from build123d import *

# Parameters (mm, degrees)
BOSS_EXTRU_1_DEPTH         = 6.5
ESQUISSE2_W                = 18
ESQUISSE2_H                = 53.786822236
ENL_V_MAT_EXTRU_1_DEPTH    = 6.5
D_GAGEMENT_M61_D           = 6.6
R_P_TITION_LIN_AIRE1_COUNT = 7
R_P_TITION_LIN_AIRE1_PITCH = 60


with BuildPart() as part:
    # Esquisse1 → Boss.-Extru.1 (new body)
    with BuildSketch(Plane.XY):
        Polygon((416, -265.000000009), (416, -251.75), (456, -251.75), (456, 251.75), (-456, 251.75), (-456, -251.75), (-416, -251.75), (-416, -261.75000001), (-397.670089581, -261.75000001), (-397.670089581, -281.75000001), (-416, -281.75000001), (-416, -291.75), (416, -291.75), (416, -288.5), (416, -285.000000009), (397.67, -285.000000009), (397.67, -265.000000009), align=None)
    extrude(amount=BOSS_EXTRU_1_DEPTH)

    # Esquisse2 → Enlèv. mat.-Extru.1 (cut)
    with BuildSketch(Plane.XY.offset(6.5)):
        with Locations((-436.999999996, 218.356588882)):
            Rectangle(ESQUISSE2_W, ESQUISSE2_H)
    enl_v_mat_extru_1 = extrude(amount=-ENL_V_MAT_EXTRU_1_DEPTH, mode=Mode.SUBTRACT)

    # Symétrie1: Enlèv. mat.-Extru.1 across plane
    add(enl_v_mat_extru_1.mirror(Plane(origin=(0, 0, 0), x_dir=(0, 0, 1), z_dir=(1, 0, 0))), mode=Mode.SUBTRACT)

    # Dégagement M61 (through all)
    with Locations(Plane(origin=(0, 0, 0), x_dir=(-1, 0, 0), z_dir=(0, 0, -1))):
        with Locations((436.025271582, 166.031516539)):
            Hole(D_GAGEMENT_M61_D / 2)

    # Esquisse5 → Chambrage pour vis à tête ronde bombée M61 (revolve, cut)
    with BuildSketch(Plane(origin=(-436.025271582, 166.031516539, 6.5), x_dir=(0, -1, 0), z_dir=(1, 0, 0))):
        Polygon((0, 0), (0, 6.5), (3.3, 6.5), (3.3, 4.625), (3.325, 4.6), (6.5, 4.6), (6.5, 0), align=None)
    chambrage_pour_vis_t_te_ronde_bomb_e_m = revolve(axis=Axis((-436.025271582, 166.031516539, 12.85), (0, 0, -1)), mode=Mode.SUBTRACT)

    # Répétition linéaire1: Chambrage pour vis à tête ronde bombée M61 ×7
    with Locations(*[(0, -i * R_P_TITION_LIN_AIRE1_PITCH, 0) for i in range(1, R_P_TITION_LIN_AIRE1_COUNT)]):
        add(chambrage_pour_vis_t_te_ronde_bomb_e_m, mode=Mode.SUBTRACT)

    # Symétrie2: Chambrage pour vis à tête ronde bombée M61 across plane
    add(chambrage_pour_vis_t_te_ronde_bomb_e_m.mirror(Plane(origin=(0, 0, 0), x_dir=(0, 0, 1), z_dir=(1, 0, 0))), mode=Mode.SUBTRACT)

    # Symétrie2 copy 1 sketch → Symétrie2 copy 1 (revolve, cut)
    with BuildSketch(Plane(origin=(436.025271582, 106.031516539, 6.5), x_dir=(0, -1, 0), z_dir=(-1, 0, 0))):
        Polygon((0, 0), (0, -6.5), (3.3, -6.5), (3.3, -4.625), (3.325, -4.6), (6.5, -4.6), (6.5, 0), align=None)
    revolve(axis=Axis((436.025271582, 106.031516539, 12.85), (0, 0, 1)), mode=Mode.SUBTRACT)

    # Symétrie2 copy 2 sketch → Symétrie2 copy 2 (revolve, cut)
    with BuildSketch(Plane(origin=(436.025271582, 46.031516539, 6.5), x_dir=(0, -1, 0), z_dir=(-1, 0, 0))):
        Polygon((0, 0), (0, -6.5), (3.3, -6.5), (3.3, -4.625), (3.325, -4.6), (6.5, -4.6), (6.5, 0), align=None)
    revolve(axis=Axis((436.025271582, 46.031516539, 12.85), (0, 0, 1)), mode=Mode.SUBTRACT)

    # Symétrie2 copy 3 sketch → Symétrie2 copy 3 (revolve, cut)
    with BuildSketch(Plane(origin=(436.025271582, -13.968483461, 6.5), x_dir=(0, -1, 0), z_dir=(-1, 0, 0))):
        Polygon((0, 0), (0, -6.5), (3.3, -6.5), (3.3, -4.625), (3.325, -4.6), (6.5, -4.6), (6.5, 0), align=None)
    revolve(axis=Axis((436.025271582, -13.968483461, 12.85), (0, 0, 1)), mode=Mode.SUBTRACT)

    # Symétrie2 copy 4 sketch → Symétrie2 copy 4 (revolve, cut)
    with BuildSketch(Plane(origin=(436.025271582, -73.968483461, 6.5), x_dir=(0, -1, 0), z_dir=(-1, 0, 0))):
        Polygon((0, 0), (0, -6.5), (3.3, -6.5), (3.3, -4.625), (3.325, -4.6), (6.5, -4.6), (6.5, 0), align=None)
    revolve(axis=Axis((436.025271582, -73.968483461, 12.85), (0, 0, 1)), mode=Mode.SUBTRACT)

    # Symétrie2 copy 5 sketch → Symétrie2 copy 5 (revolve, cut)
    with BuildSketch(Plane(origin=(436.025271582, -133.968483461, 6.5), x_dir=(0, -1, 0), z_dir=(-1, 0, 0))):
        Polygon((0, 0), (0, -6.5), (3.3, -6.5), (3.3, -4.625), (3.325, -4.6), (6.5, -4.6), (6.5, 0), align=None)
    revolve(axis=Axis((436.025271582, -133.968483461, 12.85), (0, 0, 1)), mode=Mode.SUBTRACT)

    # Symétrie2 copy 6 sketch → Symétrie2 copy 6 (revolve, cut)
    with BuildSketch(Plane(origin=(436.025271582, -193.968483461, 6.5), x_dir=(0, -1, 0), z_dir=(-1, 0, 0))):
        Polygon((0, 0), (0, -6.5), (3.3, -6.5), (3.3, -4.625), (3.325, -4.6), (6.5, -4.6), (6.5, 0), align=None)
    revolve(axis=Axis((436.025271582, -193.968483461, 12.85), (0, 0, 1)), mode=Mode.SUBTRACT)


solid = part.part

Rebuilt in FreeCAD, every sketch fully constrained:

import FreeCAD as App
import Part
import Sketcher
Q = App.Units.Quantity


def add_polygon(sketch, points):
    """Adds a closed chain of lines whose ends are joined by coincident constraints."""
    first, n = sketch.GeometryCount, len(points)
    for a, b in zip(points, points[1:] + points[:1]):
        sketch.addGeometry(Part.LineSegment(App.Vector(*a, 0), App.Vector(*b, 0)), False)
    for i in range(n):
        sketch.addConstraint(Sketcher.Constraint("Coincident", first + i, 2, first + (i + 1) % n, 1))

doc = App.newDocument("Part")
params = doc.addObject("Spreadsheet::Sheet", "Params")
for row, (alias, value) in enumerate([
    ("sketch1_width", "40 mm"),
    ("sketch1_width2", "912 mm"),
    ("sketch1_height", "10 mm"),
    ("sketch1_height2", "20 mm"),
    ("sketch1_height3", "503.5 mm"),
    ("pad1_length", "6.5 mm"),
    ("sketch2_width", "18 mm"),
    ("pocket1_length", "6.5 mm"),
    ("sketch3_diameter", "6.6 mm"),
    ("hole_diameter", "6.6 mm"),
    ("sketch4_width", "6.5 mm"),
    ("sketch4_width2", "3.3 mm"),
    ("sketch4_height", "4.6 mm"),
    ("groove_angle", "360 deg"),
    ("linearpattern_pitch", "60 mm"),
    ("sketch5_width", "3.3 mm"),
    ("sketch5_width2", "6.5 mm"),
    ("sketch5_height", "4.6 mm"),
    ("groove2_angle", "360 deg"),
    ("sketch6_width", "3.3 mm"),
    ("sketch6_width2", "6.5 mm"),
    ("sketch6_height", "4.6 mm"),
    ("groove3_angle", "360 deg"),
    ("sketch7_width", "3.3 mm"),
    ("sketch7_width2", "6.5 mm"),
    ("sketch7_height", "4.6 mm"),
    ("groove4_angle", "360 deg"),
    ("sketch8_width", "3.3 mm"),
    ("sketch8_width2", "6.5 mm"),
    ("sketch8_height", "4.6 mm"),
    ("groove5_angle", "360 deg"),
    ("sketch9_width", "3.3 mm"),
    ("sketch9_width2", "6.5 mm"),
    ("sketch9_height", "4.6 mm"),
    ("groove6_angle", "360 deg"),
    ("sketch10_width", "3.3 mm"),
    ("sketch10_width2", "6.5 mm"),
    ("sketch10_height", "4.6 mm"),
    ("groove7_angle", "360 deg"),
], start=1):
    params.set(f"A{row}", alias)
    params.set(f"B{row}", "=" + value)
    params.setAlias(f"B{row}", alias)

body = doc.addObject("PartDesign::Body", "Body")

sketch1 = body.newObject("Sketcher::SketchObject", "Sketch")
sketch1.AttachmentSupport = (doc.getObject("XY_Plane"), [""])
sketch1.MapMode = "FlatFace"
add_polygon(sketch1, [(416, -265), (416, -252), (456, -252), (456, 252), (-456, 252), (-456, -252), (-416, -252), (-416, -262), (-398, -262), (-398, -282), (-416, -282), (-416, -292), (416, -292), (416, -285), (398, -285), (398, -265)])
sketch1.addConstraint([
    Sketcher.Constraint("Vertical", 0),
    Sketcher.Constraint("Horizontal", 1),
    Sketcher.Constraint("Vertical", 2),
    Sketcher.Constraint("Horizontal", 3),
    Sketcher.Constraint("Vertical", 4),
    Sketcher.Constraint("Horizontal", 5),
    Sketcher.Constraint("Vertical", 6),
    Sketcher.Constraint("Horizontal", 7),
    Sketcher.Constraint("Vertical", 8),
    Sketcher.Constraint("Horizontal", 9),
    Sketcher.Constraint("Vertical", 10),
    Sketcher.Constraint("Horizontal", 11),
    Sketcher.Constraint("Vertical", 12),
    Sketcher.Constraint("Horizontal", 13),
    Sketcher.Constraint("Vertical", 14),
    Sketcher.Constraint("Horizontal", 15),
    Sketcher.Constraint("Symmetric", 1, 2, 3, 2, -1, 1),
    Sketcher.Constraint("Symmetric", 0, 2, 5, 2, -2),
    Sketcher.Constraint("Vertical", 6, 2, 9, 2),
    Sketcher.Constraint("Vertical", 0, 2, 11, 2),
    Sketcher.Constraint("Equal", 6, 10),
    Sketcher.Constraint("Equal", 8, 14),
    Sketcher.Constraint("DistanceX", 1, 1, 1, 2, Q("40 mm")),
    Sketcher.Constraint("DistanceX", 3, 2, 3, 1, Q("912 mm")),
    Sketcher.Constraint("DistanceY", 6, 2, 6, 1, Q("10 mm")),
    Sketcher.Constraint("DistanceY", 8, 2, 8, 1, Q("20 mm")),
    Sketcher.Constraint("DistanceY", 2, 1, 2, 2, Q("503.5 mm")),
    Sketcher.Constraint("DistanceY", 12, 2, -1, 1, Q("285 mm")),
    Sketcher.Constraint("DistanceX", 13, 2, 13, 1, Q("18.33 mm")),
    Sketcher.Constraint("DistanceX", 7, 1, 7, 2, Q("18.32991 mm")),
])
sketch1.setExpression("Constraints[38]", "Params.sketch1_width")
sketch1.setExpression("Constraints[39]", "Params.sketch1_width2")
sketch1.setExpression("Constraints[40]", "Params.sketch1_height")
sketch1.setExpression("Constraints[41]", "Params.sketch1_height2")
sketch1.setExpression("Constraints[42]", "Params.sketch1_height3")
pad1 = body.newObject("PartDesign::Pad", "Pad")
pad1.Profile = sketch1
pad1.setExpression("Length", "Params.pad1_length")

sketch2 = body.newObject("Sketcher::SketchObject", "Sketch001")
sketch2.AttachmentSupport = (doc.getObject("XY_Plane"), [""])
sketch2.MapMode = "FlatFace"
sketch2.AttachmentOffset = App.Placement(App.Vector(0, 0, 6.5), App.Rotation())
add_polygon(sketch2, [(-446, 245), (-446, 191), (-428, 191), (-428, 245)])
sketch2.addConstraint([
    Sketcher.Constraint("Vertical", 0),
    Sketcher.Constraint("Horizontal", 1),
    Sketcher.Constraint("Vertical", 2),
    Sketcher.Constraint("Horizontal", 3),
    Sketcher.Constraint("DistanceX", 1, 1, 1, 2, Q("18 mm")),
    Sketcher.Constraint("DistanceX", 0, 2, -1, 1, Q("446 mm")),
    Sketcher.Constraint("DistanceY", -1, 1, 2, 2, Q("245.25 mm")),
    Sketcher.Constraint("DistanceY", 0, 2, 0, 1, Q("53.786822 mm")),
])
sketch2.setExpression("Constraints[8]", "Params.sketch2_width")
pocket1 = body.newObject("PartDesign::Pocket", "Pocket")
pocket1.Profile = sketch2
pocket1.setExpression("Length", "Params.pocket1_length")
doc.recompute()

mirrored = body.newObject("PartDesign::Mirrored", "Mirrored")
mirrored.Originals = [pocket1]
mirrored.MirrorPlane = (doc.getObject("YZ_Plane"), [""])
body.Tip = mirrored

sketch3 = body.newObject("Sketcher::SketchObject", "Sketch002")
sketch3.AttachmentSupport = (doc.getObject("XY_Plane"), [""])
sketch3.MapMode = "FlatFace"
sketch3.addGeometry(Part.Circle(App.Vector(-436, 166, 0), App.Vector(0, 0, 1), 3.3), False)
sketch3.addConstraint([
    Sketcher.Constraint("Diameter", 0, Q("6.6 mm")),
    Sketcher.Constraint("DistanceX", 0, 3, -1, 1, Q("436.025272 mm")),
    Sketcher.Constraint("DistanceY", -1, 1, 0, 3, Q("166.031517 mm")),
])
sketch3.setExpression("Constraints[0]", "Params.sketch3_diameter")
doc.recompute()
hole = body.newObject("PartDesign::Hole", "Hole")
hole.Profile = sketch3
hole.ThreadType = "None"
hole.setExpression("Diameter", "Params.hole_diameter")
hole.DepthType = "ThroughAll"
hole.Reversed = True

sketch4 = body.newObject("Sketcher::SketchObject", "Sketch003")
sketch4.AttachmentSupport = (doc.getObject("YZ_Plane"), [""])
sketch4.MapMode = "FlatFace"
sketch4.AttachmentOffset = App.Placement(App.Vector(0, 0, -436.025272), App.Rotation())
add_polygon(sketch4, [(166.031517, 0), (166.031517, 6.5), (159.531517, 6.5), (159.531517, 1.9), (162.706517, 1.9), (162.731517, 1.875), (162.731517, 0)])
sketch4.addGeometry(Part.LineSegment(App.Vector(166.031517, 6.5, 0), App.Vector(166.031517, 0, 0)), True)
sketch4.addConstraint([
    Sketcher.Constraint("Vertical", 0),
    Sketcher.Constraint("Horizontal", 1),
    Sketcher.Constraint("Vertical", 2),
    Sketcher.Constraint("Horizontal", 3),
    Sketcher.Constraint("Vertical", 5),
    Sketcher.Constraint("Horizontal", 6),
    Sketcher.Constraint("Vertical", 7),
    Sketcher.Constraint("Coincident", 7, 1, 0, 2),
    Sketcher.Constraint("PointOnObject", 5, 2, -1),
    Sketcher.Constraint("PointOnObject", 7, 2, -1),
    Sketcher.Constraint("Equal", 1, 0),
    Sketcher.Constraint("Angle", 4, Q("-45 deg")),
    Sketcher.Constraint("DistanceX", 1, 2, 1, 1, Q("6.5 mm")),
    Sketcher.Constraint("DistanceX", 6, 1, 6, 2, Q("3.3 mm")),
    Sketcher.Constraint("DistanceY", 2, 2, 2, 1, Q("4.6 mm")),
    Sketcher.Constraint("DistanceX", 3, 1, 3, 2, Q("3.175 mm")),
    Sketcher.Constraint("DistanceX", -1, 1, 0, 2, Q("166.031517 mm")),
])
sketch4.setExpression("Constraints[19]", "Params.sketch4_width")
sketch4.setExpression("Constraints[20]", "Params.sketch4_width2")
sketch4.setExpression("Constraints[21]", "Params.sketch4_height")
groove = body.newObject("PartDesign::Groove", "Groove")
groove.Profile = sketch4
groove.ReferenceAxis = (sketch4, ["Axis0"])
groove.setExpression("Angle", "Params.groove_angle")
doc.recompute()

linearpattern = body.newObject("PartDesign::LinearPattern", "LinearPattern")
linearpattern.Originals = [groove]
linearpattern.Direction = (doc.getObject("Y_Axis"), [""])
linearpattern.Mode = "offset"
linearpattern.setExpression("Offset", "Params.linearpattern_pitch")
linearpattern.Occurrences = 7
linearpattern.Reversed = True
body.Tip = linearpattern
doc.recompute()

mirrored2 = body.newObject("PartDesign::Mirrored", "Mirrored001")
mirrored2.Originals = [groove]
mirrored2.MirrorPlane = (doc.getObject("YZ_Plane"), [""])
body.Tip = mirrored2

sketch5 = body.newObject("Sketcher::SketchObject", "Sketch004")
sketch5.AttachmentSupport = (doc.getObject("YZ_Plane"), [""])
sketch5.MapMode = "FlatFace"
sketch5.AttachmentOffset = App.Placement(App.Vector(0, 0, 436.025272), App.Rotation())
add_polygon(sketch5, [(106.032, 6.5), (106.032, 0), (102.732, 0), (102.732, 1.875), (102.707, 1.9), (99.532, 1.9), (99.532, 6.5)])
sketch5.addGeometry(Part.LineSegment(App.Vector(106.032, 0, 0), App.Vector(106.032, 6.5, 0)), True)
sketch5.addConstraint([
    Sketcher.Constraint("Vertical", 0),
    Sketcher.Constraint("Horizontal", 1),
    Sketcher.Constraint("Vertical", 2),
    Sketcher.Constraint("Horizontal", 4),
    Sketcher.Constraint("Vertical", 5),
    Sketcher.Constraint("Horizontal", 6),
    Sketcher.Constraint("Vertical", 7),
    Sketcher.Constraint("Coincident", 7, 1, 0, 2),
    Sketcher.Constraint("PointOnObject", 0, 2, -1),
    Sketcher.Constraint("Horizontal", 5, 2, 7, 2),
    Sketcher.Constraint("Equal", 6, 0),
    Sketcher.Constraint("Angle", 3, Q("135 deg")),
    Sketcher.Constraint("DistanceX", 1, 2, 1, 1, Q("3.3 mm")),
    Sketcher.Constraint("DistanceX", 6, 1, 6, 2, Q("6.5 mm")),
    Sketcher.Constraint("DistanceY", 5, 1, 5, 2, Q("4.6 mm")),
    Sketcher.Constraint("DistanceX", 4, 2, 4, 1, Q("3.175 mm")),
    Sketcher.Constraint("DistanceX", -1, 1, 0, 2, Q("106.031517 mm")),
])
sketch5.setExpression("Constraints[19]", "Params.sketch5_width")
sketch5.setExpression("Constraints[20]", "Params.sketch5_width2")
sketch5.setExpression("Constraints[21]", "Params.sketch5_height")
groove2 = body.newObject("PartDesign::Groove", "Groove001")
groove2.Profile = sketch5
groove2.ReferenceAxis = (sketch5, ["Axis0"])
groove2.setExpression("Angle", "Params.groove2_angle")

sketch6 = body.newObject("Sketcher::SketchObject", "Sketch005")
sketch6.AttachmentSupport = (doc.getObject("YZ_Plane"), [""])
sketch6.MapMode = "FlatFace"
sketch6.AttachmentOffset = App.Placement(App.Vector(0, 0, 436.025272), App.Rotation())
add_polygon(sketch6, [(46.032, 6.5), (46.032, 0), (42.732, 0), (42.732, 1.875), (42.707, 1.9), (39.532, 1.9), (39.532, 6.5)])
sketch6.addGeometry(Part.LineSegment(App.Vector(46.032, 0, 0), App.Vector(46.032, 6.5, 0)), True)
sketch6.addConstraint([
    Sketcher.Constraint("Vertical", 0),
    Sketcher.Constraint("Horizontal", 1),
    Sketcher.Constraint("Vertical", 2),
    Sketcher.Constraint("Horizontal", 4),
    Sketcher.Constraint("Vertical", 5),
    Sketcher.Constraint("Horizontal", 6),
    Sketcher.Constraint("Vertical", 7),
    Sketcher.Constraint("Coincident", 7, 1, 0, 2),
    Sketcher.Constraint("PointOnObject", 0, 2, -1),
    Sketcher.Constraint("Horizontal", 5, 2, 7, 2),
    Sketcher.Constraint("Equal", 6, 0),
    Sketcher.Constraint("Angle", 3, Q("135 deg")),
    Sketcher.Constraint("DistanceX", 1, 2, 1, 1, Q("3.3 mm")),
    Sketcher.Constraint("DistanceX", 6, 1, 6, 2, Q("6.5 mm")),
    Sketcher.Constraint("DistanceY", 5, 1, 5, 2, Q("4.6 mm")),
    Sketcher.Constraint("DistanceX", 4, 2, 4, 1, Q("3.175 mm")),
    Sketcher.Constraint("DistanceX", -1, 1, 0, 2, Q("46.031517 mm")),
])
sketch6.setExpression("Constraints[19]", "Params.sketch6_width")
sketch6.setExpression("Constraints[20]", "Params.sketch6_width2")
sketch6.setExpression("Constraints[21]", "Params.sketch6_height")
groove3 = body.newObject("PartDesign::Groove", "Groove002")
groove3.Profile = sketch6
groove3.ReferenceAxis = (sketch6, ["Axis0"])
groove3.setExpression("Angle", "Params.groove3_angle")

sketch7 = body.newObject("Sketcher::SketchObject", "Sketch006")
sketch7.AttachmentSupport = (doc.getObject("YZ_Plane"), [""])
sketch7.MapMode = "FlatFace"
sketch7.AttachmentOffset = App.Placement(App.Vector(0, 0, 436.025272), App.Rotation())
add_polygon(sketch7, [(-13.968, 6.5), (-13.968, 0), (-17.268, 0), (-17.268, 1.875), (-17.293, 1.9), (-20.468, 1.9), (-20.468, 6.5)])
sketch7.addGeometry(Part.LineSegment(App.Vector(-13.968, 0, 0), App.Vector(-13.968, 6.5, 0)), True)
sketch7.addConstraint([
    Sketcher.Constraint("Vertical", 0),
    Sketcher.Constraint("Horizontal", 1),
    Sketcher.Constraint("Vertical", 2),
    Sketcher.Constraint("Horizontal", 4),
    Sketcher.Constraint("Vertical", 5),
    Sketcher.Constraint("Horizontal", 6),
    Sketcher.Constraint("Vertical", 7),
    Sketcher.Constraint("Coincident", 7, 1, 0, 2),
    Sketcher.Constraint("PointOnObject", 0, 2, -1),
    Sketcher.Constraint("Horizontal", 5, 2, 7, 2),
    Sketcher.Constraint("Equal", 6, 0),
    Sketcher.Constraint("Angle", 3, Q("135 deg")),
    Sketcher.Constraint("DistanceX", 1, 2, 1, 1, Q("3.3 mm")),
    Sketcher.Constraint("DistanceX", 6, 1, 6, 2, Q("6.5 mm")),
    Sketcher.Constraint("DistanceY", 5, 1, 5, 2, Q("4.6 mm")),
    Sketcher.Constraint("DistanceX", 4, 2, 4, 1, Q("3.175 mm")),
    Sketcher.Constraint("DistanceX", 0, 2, -1, 1, Q("13.968483 mm")),
])
sketch7.setExpression("Constraints[19]", "Params.sketch7_width")
sketch7.setExpression("Constraints[20]", "Params.sketch7_width2")
sketch7.setExpression("Constraints[21]", "Params.sketch7_height")
groove4 = body.newObject("PartDesign::Groove", "Groove003")
groove4.Profile = sketch7
groove4.ReferenceAxis = (sketch7, ["Axis0"])
groove4.setExpression("Angle", "Params.groove4_angle")

sketch8 = body.newObject("Sketcher::SketchObject", "Sketch007")
sketch8.AttachmentSupport = (doc.getObject("YZ_Plane"), [""])
sketch8.MapMode = "FlatFace"
sketch8.AttachmentOffset = App.Placement(App.Vector(0, 0, 436.025272), App.Rotation())
add_polygon(sketch8, [(-73.968, 6.5), (-73.968, 0), (-77.268, 0), (-77.268, 1.875), (-77.293, 1.9), (-80.468, 1.9), (-80.468, 6.5)])
sketch8.addGeometry(Part.LineSegment(App.Vector(-73.968, 0, 0), App.Vector(-73.968, 6.5, 0)), True)
sketch8.addConstraint([
    Sketcher.Constraint("Vertical", 0),
    Sketcher.Constraint("Horizontal", 1),
    Sketcher.Constraint("Vertical", 2),
    Sketcher.Constraint("Horizontal", 4),
    Sketcher.Constraint("Vertical", 5),
    Sketcher.Constraint("Horizontal", 6),
    Sketcher.Constraint("Vertical", 7),
    Sketcher.Constraint("Coincident", 7, 1, 0, 2),
    Sketcher.Constraint("PointOnObject", 0, 2, -1),
    Sketcher.Constraint("Horizontal", 5, 2, 7, 2),
    Sketcher.Constraint("Equal", 6, 0),
    Sketcher.Constraint("Angle", 3, Q("135 deg")),
    Sketcher.Constraint("DistanceX", 1, 2, 1, 1, Q("3.3 mm")),
    Sketcher.Constraint("DistanceX", 6, 1, 6, 2, Q("6.5 mm")),
    Sketcher.Constraint("DistanceY", 5, 1, 5, 2, Q("4.6 mm")),
    Sketcher.Constraint("DistanceX", 4, 2, 4, 1, Q("3.175 mm")),
    Sketcher.Constraint("DistanceX", 0, 2, -1, 1, Q("73.968483 mm")),
])
sketch8.setExpression("Constraints[19]", "Params.sketch8_width")
sketch8.setExpression("Constraints[20]", "Params.sketch8_width2")
sketch8.setExpression("Constraints[21]", "Params.sketch8_height")
groove5 = body.newObject("PartDesign::Groove", "Groove004")
groove5.Profile = sketch8
groove5.ReferenceAxis = (sketch8, ["Axis0"])
groove5.setExpression("Angle", "Params.groove5_angle")

sketch9 = body.newObject("Sketcher::SketchObject", "Sketch008")
sketch9.AttachmentSupport = (doc.getObject("YZ_Plane"), [""])
sketch9.MapMode = "FlatFace"
sketch9.AttachmentOffset = App.Placement(App.Vector(0, 0, 436.025272), App.Rotation())
add_polygon(sketch9, [(-133.968483, 6.5), (-133.968483, 0), (-137.268483, 0), (-137.268483, 1.875), (-137.293483, 1.9), (-140.468483, 1.9), (-140.468483, 6.5)])
sketch9.addGeometry(Part.LineSegment(App.Vector(-133.968483, 0, 0), App.Vector(-133.968483, 6.5, 0)), True)
sketch9.addConstraint([
    Sketcher.Constraint("Vertical", 0),
    Sketcher.Constraint("Horizontal", 1),
    Sketcher.Constraint("Vertical", 2),
    Sketcher.Constraint("Horizontal", 4),
    Sketcher.Constraint("Vertical", 5),
    Sketcher.Constraint("Horizontal", 6),
    Sketcher.Constraint("Vertical", 7),
    Sketcher.Constraint("Coincident", 7, 1, 0, 2),
    Sketcher.Constraint("PointOnObject", 0, 2, -1),
    Sketcher.Constraint("Horizontal", 5, 2, 7, 2),
    Sketcher.Constraint("Equal", 6, 0),
    Sketcher.Constraint("Angle", 3, Q("135 deg")),
    Sketcher.Constraint("DistanceX", 1, 2, 1, 1, Q("3.3 mm")),
    Sketcher.Constraint("DistanceX", 6, 1, 6, 2, Q("6.5 mm")),
    Sketcher.Constraint("DistanceY", 5, 1, 5, 2, Q("4.6 mm")),
    Sketcher.Constraint("DistanceX", 4, 2, 4, 1, Q("3.175 mm")),
    Sketcher.Constraint("DistanceX", 0, 2, -1, 1, Q("133.968483 mm")),
])
sketch9.setExpression("Constraints[19]", "Params.sketch9_width")
sketch9.setExpression("Constraints[20]", "Params.sketch9_width2")
sketch9.setExpression("Constraints[21]", "Params.sketch9_height")
groove6 = body.newObject("PartDesign::Groove", "Groove005")
groove6.Profile = sketch9
groove6.ReferenceAxis = (sketch9, ["Axis0"])
groove6.setExpression("Angle", "Params.groove6_angle")

sketch10 = body.newObject("Sketcher::SketchObject", "Sketch009")
sketch10.AttachmentSupport = (doc.getObject("YZ_Plane"), [""])
sketch10.MapMode = "FlatFace"
sketch10.AttachmentOffset = App.Placement(App.Vector(0, 0, 436.025272), App.Rotation())
add_polygon(sketch10, [(-193.968483, 6.5), (-193.968483, 0), (-197.268483, 0), (-197.268483, 1.875), (-197.293483, 1.9), (-200.468483, 1.9), (-200.468483, 6.5)])
sketch10.addGeometry(Part.LineSegment(App.Vector(-193.968483, 0, 0), App.Vector(-193.968483, 6.5, 0)), True)
sketch10.addConstraint([
    Sketcher.Constraint("Vertical", 0),
    Sketcher.Constraint("Horizontal", 1),
    Sketcher.Constraint("Vertical", 2),
    Sketcher.Constraint("Horizontal", 4),
    Sketcher.Constraint("Vertical", 5),
    Sketcher.Constraint("Horizontal", 6),
    Sketcher.Constraint("Vertical", 7),
    Sketcher.Constraint("Coincident", 7, 1, 0, 2),
    Sketcher.Constraint("PointOnObject", 0, 2, -1),
    Sketcher.Constraint("Horizontal", 5, 2, 7, 2),
    Sketcher.Constraint("Equal", 6, 0),
    Sketcher.Constraint("Angle", 3, Q("135 deg")),
    Sketcher.Constraint("DistanceX", 1, 2, 1, 1, Q("3.3 mm")),
    Sketcher.Constraint("DistanceX", 6, 1, 6, 2, Q("6.5 mm")),
    Sketcher.Constraint("DistanceY", 5, 1, 5, 2, Q("4.6 mm")),
    Sketcher.Constraint("DistanceX", 4, 2, 4, 1, Q("3.175 mm")),
    Sketcher.Constraint("DistanceX", 0, 2, -1, 1, Q("193.968483 mm")),
])
sketch10.setExpression("Constraints[19]", "Params.sketch10_width")
sketch10.setExpression("Constraints[20]", "Params.sketch10_width2")
sketch10.setExpression("Constraints[21]", "Params.sketch10_height")
groove7 = body.newObject("PartDesign::Groove", "Groove006")
groove7.Profile = sketch10
groove7.ReferenceAxis = (sketch10, ["Axis0"])
groove7.setExpression("Angle", "Params.groove7_angle")

doc.recompute()
